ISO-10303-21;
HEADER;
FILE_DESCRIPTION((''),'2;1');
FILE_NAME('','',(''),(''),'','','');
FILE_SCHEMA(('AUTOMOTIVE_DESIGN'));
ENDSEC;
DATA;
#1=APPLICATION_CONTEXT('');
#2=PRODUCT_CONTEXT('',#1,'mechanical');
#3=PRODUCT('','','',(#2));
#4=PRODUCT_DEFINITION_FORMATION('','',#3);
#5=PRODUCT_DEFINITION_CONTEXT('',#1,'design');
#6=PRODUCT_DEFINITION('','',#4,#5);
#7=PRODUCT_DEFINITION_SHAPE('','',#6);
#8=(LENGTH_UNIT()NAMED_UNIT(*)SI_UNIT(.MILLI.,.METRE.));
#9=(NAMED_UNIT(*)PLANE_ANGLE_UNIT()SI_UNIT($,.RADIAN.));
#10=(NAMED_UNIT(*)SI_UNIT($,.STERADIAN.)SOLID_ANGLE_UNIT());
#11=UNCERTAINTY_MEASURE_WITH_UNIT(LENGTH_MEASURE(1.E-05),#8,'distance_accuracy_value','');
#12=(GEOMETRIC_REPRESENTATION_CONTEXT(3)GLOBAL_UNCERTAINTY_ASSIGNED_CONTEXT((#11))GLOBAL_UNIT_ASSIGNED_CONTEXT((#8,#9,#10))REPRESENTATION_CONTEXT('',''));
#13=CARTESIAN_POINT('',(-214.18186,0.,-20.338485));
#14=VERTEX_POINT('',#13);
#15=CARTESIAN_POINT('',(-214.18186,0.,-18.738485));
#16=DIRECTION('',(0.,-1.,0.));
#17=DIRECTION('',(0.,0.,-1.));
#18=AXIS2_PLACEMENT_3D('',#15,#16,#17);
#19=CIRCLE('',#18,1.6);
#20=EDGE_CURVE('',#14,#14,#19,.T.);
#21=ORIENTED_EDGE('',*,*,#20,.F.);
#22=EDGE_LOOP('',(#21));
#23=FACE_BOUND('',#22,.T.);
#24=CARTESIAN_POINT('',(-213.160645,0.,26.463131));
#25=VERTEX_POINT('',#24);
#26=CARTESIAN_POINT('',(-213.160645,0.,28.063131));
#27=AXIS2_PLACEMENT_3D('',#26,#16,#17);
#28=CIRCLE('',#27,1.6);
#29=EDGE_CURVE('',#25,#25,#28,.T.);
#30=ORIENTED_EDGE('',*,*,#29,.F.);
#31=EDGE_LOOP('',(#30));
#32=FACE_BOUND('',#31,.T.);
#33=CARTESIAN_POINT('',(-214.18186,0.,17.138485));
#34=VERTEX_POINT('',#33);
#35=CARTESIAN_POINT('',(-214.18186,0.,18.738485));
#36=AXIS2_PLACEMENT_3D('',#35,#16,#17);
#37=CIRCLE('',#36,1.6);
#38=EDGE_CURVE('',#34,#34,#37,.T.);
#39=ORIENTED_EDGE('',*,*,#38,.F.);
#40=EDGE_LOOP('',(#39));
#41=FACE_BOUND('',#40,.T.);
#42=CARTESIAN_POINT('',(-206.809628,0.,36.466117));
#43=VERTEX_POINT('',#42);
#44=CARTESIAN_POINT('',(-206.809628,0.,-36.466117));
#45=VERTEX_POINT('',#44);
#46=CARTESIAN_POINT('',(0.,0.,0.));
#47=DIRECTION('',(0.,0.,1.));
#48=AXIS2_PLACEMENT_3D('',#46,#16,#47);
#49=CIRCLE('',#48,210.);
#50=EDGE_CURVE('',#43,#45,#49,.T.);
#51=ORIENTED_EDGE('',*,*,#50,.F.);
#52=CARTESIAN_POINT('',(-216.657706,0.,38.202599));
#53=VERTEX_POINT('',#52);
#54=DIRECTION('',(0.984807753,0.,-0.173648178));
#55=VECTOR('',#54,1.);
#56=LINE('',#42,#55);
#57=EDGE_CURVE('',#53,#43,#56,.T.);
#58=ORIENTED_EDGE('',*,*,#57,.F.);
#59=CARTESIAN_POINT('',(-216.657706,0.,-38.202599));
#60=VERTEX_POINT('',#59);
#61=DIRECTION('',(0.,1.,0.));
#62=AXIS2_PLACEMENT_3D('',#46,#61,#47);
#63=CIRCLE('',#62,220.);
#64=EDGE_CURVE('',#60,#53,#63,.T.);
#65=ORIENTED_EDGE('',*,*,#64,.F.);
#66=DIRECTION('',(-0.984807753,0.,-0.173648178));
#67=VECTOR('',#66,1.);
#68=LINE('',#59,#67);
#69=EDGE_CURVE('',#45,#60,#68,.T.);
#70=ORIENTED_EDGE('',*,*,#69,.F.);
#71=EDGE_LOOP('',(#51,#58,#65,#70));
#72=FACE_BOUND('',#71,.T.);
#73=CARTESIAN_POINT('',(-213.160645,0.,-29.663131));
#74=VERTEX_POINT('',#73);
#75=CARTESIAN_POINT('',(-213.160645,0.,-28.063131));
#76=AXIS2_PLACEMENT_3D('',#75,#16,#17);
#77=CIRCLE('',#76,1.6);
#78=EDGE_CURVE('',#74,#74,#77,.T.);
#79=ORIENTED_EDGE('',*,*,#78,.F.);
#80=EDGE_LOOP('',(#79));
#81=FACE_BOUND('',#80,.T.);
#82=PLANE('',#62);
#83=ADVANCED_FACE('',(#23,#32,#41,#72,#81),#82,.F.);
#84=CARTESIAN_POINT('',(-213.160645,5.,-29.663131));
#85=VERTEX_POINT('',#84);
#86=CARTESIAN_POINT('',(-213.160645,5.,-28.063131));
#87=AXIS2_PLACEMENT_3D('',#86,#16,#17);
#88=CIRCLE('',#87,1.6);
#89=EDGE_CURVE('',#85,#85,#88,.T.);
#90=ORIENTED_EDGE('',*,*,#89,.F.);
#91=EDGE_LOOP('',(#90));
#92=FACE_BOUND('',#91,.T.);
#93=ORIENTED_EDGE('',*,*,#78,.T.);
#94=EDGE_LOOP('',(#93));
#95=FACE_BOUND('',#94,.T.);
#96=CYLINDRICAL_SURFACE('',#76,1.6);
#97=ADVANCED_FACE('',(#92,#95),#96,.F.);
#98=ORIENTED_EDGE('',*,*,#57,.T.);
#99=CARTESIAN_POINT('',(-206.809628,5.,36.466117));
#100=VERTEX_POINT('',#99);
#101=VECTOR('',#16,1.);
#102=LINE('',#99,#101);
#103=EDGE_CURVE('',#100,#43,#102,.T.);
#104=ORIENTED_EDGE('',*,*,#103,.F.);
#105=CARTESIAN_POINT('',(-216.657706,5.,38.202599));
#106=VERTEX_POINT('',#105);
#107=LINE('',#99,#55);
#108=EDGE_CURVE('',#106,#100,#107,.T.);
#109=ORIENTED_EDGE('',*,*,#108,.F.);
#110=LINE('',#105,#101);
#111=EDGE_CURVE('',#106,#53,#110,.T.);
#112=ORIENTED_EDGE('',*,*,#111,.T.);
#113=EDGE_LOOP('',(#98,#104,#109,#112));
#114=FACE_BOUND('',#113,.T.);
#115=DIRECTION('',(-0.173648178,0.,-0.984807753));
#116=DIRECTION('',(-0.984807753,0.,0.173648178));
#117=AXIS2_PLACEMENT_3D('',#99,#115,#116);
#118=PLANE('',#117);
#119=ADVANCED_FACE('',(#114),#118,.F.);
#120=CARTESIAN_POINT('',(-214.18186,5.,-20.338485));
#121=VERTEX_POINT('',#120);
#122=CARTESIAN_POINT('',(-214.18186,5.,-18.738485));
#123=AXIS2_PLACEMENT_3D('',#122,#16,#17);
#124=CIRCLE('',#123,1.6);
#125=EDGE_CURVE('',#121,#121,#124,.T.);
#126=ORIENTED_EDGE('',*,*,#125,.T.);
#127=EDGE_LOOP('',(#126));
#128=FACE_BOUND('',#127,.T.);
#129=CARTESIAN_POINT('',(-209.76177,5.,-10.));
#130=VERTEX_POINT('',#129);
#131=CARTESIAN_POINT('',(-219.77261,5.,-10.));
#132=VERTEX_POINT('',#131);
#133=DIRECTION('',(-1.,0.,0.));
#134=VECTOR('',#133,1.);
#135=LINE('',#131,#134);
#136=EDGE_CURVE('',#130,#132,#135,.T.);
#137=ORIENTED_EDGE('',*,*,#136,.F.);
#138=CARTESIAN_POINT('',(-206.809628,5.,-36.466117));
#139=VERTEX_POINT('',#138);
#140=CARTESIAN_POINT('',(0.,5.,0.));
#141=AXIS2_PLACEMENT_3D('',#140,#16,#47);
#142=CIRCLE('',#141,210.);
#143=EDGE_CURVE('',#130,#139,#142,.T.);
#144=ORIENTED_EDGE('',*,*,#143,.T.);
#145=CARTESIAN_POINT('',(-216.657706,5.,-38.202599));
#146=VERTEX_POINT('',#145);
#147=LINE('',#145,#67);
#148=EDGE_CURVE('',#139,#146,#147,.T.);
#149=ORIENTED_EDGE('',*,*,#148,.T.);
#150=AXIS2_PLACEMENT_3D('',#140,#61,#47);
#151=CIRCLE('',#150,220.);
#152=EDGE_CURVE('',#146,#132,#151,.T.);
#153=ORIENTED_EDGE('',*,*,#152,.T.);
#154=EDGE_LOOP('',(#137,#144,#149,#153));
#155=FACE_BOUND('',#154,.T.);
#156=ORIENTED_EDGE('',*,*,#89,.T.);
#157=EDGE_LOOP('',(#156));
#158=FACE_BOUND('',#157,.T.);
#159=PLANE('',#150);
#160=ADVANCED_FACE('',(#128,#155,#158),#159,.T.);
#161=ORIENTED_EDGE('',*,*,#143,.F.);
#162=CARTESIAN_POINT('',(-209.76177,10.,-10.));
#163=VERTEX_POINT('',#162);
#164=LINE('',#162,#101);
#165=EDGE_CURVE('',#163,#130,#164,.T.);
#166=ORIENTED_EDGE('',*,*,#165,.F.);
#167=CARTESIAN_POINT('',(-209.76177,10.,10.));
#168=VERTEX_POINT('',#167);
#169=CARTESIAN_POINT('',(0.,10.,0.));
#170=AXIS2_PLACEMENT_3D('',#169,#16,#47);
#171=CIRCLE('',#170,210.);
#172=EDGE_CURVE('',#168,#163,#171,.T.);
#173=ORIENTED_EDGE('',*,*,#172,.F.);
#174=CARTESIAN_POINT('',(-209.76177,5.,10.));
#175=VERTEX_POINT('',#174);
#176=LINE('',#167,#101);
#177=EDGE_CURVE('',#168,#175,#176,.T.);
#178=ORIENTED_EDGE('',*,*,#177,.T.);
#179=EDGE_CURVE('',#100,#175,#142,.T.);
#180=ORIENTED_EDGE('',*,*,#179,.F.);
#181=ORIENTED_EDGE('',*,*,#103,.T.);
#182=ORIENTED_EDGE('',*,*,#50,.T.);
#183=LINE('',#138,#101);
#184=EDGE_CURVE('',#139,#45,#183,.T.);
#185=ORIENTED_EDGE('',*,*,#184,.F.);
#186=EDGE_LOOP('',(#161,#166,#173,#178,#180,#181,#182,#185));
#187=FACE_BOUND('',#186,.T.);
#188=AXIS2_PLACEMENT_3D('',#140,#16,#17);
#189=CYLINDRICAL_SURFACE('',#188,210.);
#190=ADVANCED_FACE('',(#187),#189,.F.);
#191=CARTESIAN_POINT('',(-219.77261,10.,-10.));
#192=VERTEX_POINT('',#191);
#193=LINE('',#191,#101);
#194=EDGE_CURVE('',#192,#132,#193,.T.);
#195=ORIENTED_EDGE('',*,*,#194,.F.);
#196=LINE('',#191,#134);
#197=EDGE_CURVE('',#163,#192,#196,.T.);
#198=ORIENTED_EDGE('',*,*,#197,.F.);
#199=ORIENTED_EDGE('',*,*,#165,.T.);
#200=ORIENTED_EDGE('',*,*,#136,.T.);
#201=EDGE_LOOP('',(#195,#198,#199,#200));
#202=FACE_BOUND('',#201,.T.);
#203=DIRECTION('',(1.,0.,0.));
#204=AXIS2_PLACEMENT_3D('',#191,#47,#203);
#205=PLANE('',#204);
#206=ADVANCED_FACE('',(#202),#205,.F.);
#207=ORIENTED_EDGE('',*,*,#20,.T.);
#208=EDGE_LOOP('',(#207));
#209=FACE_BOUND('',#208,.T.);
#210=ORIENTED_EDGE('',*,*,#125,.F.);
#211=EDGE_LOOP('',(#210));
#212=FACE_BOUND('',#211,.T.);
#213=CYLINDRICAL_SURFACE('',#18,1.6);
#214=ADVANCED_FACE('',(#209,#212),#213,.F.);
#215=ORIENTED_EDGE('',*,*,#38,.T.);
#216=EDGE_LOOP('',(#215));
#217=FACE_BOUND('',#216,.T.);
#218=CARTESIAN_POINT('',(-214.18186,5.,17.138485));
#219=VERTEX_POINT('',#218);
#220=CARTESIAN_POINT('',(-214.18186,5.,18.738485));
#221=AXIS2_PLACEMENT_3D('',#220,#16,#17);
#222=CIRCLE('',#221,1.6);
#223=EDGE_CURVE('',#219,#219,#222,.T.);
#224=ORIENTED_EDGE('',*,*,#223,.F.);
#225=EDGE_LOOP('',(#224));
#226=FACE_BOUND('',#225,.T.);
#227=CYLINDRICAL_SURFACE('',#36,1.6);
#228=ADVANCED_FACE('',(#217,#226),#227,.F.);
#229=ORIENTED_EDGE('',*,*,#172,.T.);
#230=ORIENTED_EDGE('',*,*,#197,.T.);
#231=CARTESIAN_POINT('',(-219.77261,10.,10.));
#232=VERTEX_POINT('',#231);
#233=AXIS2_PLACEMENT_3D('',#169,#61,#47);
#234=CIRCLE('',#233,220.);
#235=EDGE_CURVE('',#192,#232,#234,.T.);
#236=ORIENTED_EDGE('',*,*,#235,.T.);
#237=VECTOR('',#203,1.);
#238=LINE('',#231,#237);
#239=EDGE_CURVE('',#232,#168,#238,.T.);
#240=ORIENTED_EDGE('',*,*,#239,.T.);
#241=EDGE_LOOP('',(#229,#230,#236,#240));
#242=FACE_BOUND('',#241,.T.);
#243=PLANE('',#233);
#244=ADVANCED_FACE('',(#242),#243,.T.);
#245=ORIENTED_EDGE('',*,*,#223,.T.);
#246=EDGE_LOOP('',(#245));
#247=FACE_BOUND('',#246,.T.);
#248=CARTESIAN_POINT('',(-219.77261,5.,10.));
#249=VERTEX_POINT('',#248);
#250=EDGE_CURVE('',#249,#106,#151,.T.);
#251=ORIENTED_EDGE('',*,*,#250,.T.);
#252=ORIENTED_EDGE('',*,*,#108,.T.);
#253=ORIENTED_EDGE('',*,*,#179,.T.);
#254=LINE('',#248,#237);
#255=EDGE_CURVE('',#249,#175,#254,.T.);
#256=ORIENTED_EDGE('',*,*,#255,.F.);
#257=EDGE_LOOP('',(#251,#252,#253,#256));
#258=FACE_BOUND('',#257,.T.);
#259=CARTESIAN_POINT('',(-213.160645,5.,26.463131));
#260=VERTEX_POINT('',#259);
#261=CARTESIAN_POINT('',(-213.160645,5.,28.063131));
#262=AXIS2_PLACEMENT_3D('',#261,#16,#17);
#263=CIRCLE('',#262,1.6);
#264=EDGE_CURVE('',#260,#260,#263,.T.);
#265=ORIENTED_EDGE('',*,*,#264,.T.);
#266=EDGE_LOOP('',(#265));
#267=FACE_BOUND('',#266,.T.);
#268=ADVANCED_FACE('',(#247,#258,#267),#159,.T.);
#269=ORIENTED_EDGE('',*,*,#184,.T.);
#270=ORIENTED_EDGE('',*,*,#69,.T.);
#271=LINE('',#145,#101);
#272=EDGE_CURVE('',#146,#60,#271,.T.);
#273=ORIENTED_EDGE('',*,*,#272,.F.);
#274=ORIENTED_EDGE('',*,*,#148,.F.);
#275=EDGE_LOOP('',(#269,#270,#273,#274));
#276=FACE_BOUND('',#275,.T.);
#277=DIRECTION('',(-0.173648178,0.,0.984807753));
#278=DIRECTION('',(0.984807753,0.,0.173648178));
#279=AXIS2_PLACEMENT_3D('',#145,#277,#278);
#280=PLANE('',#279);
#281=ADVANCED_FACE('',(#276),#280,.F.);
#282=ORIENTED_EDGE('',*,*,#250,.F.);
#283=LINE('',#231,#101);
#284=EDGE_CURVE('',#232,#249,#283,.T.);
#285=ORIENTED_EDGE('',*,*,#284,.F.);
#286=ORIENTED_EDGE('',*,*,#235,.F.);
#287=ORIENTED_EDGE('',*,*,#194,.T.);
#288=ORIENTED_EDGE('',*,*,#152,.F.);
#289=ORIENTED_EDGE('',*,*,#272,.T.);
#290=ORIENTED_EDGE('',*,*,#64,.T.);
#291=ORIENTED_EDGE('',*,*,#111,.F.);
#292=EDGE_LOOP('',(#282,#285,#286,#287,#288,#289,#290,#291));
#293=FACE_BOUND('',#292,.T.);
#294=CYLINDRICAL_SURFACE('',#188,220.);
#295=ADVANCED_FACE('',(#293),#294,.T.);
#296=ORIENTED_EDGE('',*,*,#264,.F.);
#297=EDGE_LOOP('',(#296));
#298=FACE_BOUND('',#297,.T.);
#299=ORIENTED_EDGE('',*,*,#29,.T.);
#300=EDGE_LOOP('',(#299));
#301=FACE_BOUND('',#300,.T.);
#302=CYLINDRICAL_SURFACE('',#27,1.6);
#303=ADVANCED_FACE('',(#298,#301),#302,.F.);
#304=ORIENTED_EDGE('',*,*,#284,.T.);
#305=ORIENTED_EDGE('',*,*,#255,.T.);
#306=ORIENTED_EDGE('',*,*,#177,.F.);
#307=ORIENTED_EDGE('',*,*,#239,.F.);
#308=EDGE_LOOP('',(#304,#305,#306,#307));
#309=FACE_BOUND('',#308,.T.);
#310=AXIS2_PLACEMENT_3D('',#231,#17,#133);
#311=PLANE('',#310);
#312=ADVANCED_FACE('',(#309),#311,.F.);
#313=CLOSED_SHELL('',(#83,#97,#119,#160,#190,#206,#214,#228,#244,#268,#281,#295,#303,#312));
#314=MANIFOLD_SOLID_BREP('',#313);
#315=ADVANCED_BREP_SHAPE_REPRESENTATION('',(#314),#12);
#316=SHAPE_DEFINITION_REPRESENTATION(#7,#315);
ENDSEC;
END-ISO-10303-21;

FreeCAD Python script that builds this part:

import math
import FreeCAD as App
import Part
import Sketcher

V = App.Vector
Q = App.Units.Quantity

doc = App.newDocument("Part")
body = doc.addObject("PartDesign::Body", "Body")

# Sketch on XZ plane
sketch1 = body.newObject("Sketcher::SketchObject", "Sketch")
sketch1.AttachmentSupport = (doc.getObject("XZ_Plane"), [""])
sketch1.MapMode = "FlatFace"
sketch1.addGeometry([
    Part.LineSegment(V(-207, -36, 0), V(-217, -38, 0)),
    Part.ArcOfCircle(Part.Circle(V(0, 0, 0), V(0, 0, 1), 220), math.radians(170), math.radians(190)),
    Part.LineSegment(V(-217, 38, 0), V(-207, 36, 0)),
    Part.ArcOfCircle(Part.Circle(V(0, 0, 0), V(0, 0, 1), 210), math.radians(170), math.radians(190)),
], False)
sketch1.addConstraint([
    Sketcher.Constraint("Coincident", 0, 2, 1, 2),
    Sketcher.Constraint("Coincident", 1, 1, 2, 1),
    Sketcher.Constraint("Coincident", 2, 2, 3, 1),
    Sketcher.Constraint("Coincident", 3, 2, 0, 1),
    Sketcher.Constraint("Coincident", 1, 3, -1, 1),
    Sketcher.Constraint("Coincident", 3, 3, -1, 1),
    Sketcher.Constraint("Vertical", 0, 2, 1, 1),
    Sketcher.Constraint("Vertical", 2, 2, 3, 2),
    Sketcher.Constraint("Radius", 1, Q("220 mm")),
    Sketcher.Constraint("Radius", 3, Q("210 mm")),
    Sketcher.Constraint("Angle", 0, Q("-170 deg")),
    Sketcher.Constraint("DistanceY", 0, 2, -1, 1, Q("38.202599 mm")),
])
pad1 = body.newObject("PartDesign::Pad", "Pad")
pad1.Profile = sketch1
pad1.Length = 5
pad1.Reversed = True

# Sketch on XZ plane
sketch2 = body.newObject("Sketcher::SketchObject", "Sketch001")
sketch2.AttachmentSupport = (doc.getObject("XZ_Plane"), [""])
sketch2.MapMode = "FlatFace"
sketch2.addGeometry([
    Part.Circle(V(-214.2, 18.7, 0), V(0, 0, 1), 1.6),
    Part.Circle(V(-214.2, -18.7, 0), V(0, 0, 1), 1.6),
    Part.Circle(V(-213.2, 28.1, 0), V(0, 0, 1), 1.6),
    Part.Circle(V(-213.2, -28.1, 0), V(0, 0, 1), 1.6),
], False)
sketch2.addConstraint([
    Sketcher.Constraint("Equal", 0, 1),
    Sketcher.Constraint("Equal", 1, 2),
    Sketcher.Constraint("Equal", 2, 3),
    Sketcher.Constraint("Symmetric", 0, 3, 1, 3, -1),
    Sketcher.Constraint("Symmetric", 2, 3, 3, 3, -1),
    Sketcher.Constraint("Diameter", 0, Q("3.2 mm")),
    Sketcher.Constraint("DistanceX", 0, 3, -1, 1, Q("214.18186 mm")),
    Sketcher.Constraint("DistanceY", -1, 1, 2, 3, Q("28.063131 mm")),
    Sketcher.Constraint("DistanceY", 1, 3, 0, 3, Q("37.476969 mm")),
    Sketcher.Constraint("DistanceX", 2, 3, -1, 1, Q("213.160645 mm")),
])
doc.recompute()
hole = body.newObject("PartDesign::Hole", "Hole")
hole.Profile = sketch2
hole.ThreadType = "None"
hole.Diameter = 3.2
hole.DepthType = "ThroughAll"

# Sketch on XZ plane
sketch3 = body.newObject("Sketcher::SketchObject", "Sketch002")
sketch3.AttachmentSupport = (doc.getObject("XZ_Plane"), [""])
sketch3.MapMode = "FlatFace"
sketch3.AttachmentOffset = App.Placement(V(0, 0, -5), App.Rotation())
sketch3.addGeometry([
    Part.LineSegment(V(-210, -10, 0), V(-220, -10, 0)),
    Part.ArcOfCircle(Part.Circle(V(0, 0, 0), V(0, 0, 1), 220), math.radians(177.39), math.radians(182.61)),
    Part.LineSegment(V(-220, 10, 0), V(-210, 10, 0)),
    Part.ArcOfCircle(Part.Circle(V(0, 0, 0), V(0, 0, 1), 210), math.radians(177.27), math.radians(182.73)),
], False)
sketch3.addConstraint([
    Sketcher.Constraint("Coincident", 0, 2, 1, 2),
    Sketcher.Constraint("Coincident", 1, 1, 2, 1),
    Sketcher.Constraint("Coincident", 2, 2, 3, 1),
    Sketcher.Constraint("Coincident", 3, 2, 0, 1),
    Sketcher.Constraint("Horizontal", 0),
    Sketcher.Constraint("Horizontal", 2),
    Sketcher.Constraint("Coincident", 1, 3, -1, 1),
    Sketcher.Constraint("Coincident", 3, 3, -1, 1),
    Sketcher.Constraint("Vertical", 0, 2, 1, 1),
    Sketcher.Constraint("Radius", 1, Q("220 mm")),
    Sketcher.Constraint("Radius", 3, Q("210 mm")),
    Sketcher.Constraint("DistanceY", 0, 2, -1, 1, Q("10 mm")),
])
pad2 = body.newObject("PartDesign::Pad", "Pad001")
pad2.Profile = sketch3
pad2.Length = 5
pad2.Reversed = True

doc.recompute()
